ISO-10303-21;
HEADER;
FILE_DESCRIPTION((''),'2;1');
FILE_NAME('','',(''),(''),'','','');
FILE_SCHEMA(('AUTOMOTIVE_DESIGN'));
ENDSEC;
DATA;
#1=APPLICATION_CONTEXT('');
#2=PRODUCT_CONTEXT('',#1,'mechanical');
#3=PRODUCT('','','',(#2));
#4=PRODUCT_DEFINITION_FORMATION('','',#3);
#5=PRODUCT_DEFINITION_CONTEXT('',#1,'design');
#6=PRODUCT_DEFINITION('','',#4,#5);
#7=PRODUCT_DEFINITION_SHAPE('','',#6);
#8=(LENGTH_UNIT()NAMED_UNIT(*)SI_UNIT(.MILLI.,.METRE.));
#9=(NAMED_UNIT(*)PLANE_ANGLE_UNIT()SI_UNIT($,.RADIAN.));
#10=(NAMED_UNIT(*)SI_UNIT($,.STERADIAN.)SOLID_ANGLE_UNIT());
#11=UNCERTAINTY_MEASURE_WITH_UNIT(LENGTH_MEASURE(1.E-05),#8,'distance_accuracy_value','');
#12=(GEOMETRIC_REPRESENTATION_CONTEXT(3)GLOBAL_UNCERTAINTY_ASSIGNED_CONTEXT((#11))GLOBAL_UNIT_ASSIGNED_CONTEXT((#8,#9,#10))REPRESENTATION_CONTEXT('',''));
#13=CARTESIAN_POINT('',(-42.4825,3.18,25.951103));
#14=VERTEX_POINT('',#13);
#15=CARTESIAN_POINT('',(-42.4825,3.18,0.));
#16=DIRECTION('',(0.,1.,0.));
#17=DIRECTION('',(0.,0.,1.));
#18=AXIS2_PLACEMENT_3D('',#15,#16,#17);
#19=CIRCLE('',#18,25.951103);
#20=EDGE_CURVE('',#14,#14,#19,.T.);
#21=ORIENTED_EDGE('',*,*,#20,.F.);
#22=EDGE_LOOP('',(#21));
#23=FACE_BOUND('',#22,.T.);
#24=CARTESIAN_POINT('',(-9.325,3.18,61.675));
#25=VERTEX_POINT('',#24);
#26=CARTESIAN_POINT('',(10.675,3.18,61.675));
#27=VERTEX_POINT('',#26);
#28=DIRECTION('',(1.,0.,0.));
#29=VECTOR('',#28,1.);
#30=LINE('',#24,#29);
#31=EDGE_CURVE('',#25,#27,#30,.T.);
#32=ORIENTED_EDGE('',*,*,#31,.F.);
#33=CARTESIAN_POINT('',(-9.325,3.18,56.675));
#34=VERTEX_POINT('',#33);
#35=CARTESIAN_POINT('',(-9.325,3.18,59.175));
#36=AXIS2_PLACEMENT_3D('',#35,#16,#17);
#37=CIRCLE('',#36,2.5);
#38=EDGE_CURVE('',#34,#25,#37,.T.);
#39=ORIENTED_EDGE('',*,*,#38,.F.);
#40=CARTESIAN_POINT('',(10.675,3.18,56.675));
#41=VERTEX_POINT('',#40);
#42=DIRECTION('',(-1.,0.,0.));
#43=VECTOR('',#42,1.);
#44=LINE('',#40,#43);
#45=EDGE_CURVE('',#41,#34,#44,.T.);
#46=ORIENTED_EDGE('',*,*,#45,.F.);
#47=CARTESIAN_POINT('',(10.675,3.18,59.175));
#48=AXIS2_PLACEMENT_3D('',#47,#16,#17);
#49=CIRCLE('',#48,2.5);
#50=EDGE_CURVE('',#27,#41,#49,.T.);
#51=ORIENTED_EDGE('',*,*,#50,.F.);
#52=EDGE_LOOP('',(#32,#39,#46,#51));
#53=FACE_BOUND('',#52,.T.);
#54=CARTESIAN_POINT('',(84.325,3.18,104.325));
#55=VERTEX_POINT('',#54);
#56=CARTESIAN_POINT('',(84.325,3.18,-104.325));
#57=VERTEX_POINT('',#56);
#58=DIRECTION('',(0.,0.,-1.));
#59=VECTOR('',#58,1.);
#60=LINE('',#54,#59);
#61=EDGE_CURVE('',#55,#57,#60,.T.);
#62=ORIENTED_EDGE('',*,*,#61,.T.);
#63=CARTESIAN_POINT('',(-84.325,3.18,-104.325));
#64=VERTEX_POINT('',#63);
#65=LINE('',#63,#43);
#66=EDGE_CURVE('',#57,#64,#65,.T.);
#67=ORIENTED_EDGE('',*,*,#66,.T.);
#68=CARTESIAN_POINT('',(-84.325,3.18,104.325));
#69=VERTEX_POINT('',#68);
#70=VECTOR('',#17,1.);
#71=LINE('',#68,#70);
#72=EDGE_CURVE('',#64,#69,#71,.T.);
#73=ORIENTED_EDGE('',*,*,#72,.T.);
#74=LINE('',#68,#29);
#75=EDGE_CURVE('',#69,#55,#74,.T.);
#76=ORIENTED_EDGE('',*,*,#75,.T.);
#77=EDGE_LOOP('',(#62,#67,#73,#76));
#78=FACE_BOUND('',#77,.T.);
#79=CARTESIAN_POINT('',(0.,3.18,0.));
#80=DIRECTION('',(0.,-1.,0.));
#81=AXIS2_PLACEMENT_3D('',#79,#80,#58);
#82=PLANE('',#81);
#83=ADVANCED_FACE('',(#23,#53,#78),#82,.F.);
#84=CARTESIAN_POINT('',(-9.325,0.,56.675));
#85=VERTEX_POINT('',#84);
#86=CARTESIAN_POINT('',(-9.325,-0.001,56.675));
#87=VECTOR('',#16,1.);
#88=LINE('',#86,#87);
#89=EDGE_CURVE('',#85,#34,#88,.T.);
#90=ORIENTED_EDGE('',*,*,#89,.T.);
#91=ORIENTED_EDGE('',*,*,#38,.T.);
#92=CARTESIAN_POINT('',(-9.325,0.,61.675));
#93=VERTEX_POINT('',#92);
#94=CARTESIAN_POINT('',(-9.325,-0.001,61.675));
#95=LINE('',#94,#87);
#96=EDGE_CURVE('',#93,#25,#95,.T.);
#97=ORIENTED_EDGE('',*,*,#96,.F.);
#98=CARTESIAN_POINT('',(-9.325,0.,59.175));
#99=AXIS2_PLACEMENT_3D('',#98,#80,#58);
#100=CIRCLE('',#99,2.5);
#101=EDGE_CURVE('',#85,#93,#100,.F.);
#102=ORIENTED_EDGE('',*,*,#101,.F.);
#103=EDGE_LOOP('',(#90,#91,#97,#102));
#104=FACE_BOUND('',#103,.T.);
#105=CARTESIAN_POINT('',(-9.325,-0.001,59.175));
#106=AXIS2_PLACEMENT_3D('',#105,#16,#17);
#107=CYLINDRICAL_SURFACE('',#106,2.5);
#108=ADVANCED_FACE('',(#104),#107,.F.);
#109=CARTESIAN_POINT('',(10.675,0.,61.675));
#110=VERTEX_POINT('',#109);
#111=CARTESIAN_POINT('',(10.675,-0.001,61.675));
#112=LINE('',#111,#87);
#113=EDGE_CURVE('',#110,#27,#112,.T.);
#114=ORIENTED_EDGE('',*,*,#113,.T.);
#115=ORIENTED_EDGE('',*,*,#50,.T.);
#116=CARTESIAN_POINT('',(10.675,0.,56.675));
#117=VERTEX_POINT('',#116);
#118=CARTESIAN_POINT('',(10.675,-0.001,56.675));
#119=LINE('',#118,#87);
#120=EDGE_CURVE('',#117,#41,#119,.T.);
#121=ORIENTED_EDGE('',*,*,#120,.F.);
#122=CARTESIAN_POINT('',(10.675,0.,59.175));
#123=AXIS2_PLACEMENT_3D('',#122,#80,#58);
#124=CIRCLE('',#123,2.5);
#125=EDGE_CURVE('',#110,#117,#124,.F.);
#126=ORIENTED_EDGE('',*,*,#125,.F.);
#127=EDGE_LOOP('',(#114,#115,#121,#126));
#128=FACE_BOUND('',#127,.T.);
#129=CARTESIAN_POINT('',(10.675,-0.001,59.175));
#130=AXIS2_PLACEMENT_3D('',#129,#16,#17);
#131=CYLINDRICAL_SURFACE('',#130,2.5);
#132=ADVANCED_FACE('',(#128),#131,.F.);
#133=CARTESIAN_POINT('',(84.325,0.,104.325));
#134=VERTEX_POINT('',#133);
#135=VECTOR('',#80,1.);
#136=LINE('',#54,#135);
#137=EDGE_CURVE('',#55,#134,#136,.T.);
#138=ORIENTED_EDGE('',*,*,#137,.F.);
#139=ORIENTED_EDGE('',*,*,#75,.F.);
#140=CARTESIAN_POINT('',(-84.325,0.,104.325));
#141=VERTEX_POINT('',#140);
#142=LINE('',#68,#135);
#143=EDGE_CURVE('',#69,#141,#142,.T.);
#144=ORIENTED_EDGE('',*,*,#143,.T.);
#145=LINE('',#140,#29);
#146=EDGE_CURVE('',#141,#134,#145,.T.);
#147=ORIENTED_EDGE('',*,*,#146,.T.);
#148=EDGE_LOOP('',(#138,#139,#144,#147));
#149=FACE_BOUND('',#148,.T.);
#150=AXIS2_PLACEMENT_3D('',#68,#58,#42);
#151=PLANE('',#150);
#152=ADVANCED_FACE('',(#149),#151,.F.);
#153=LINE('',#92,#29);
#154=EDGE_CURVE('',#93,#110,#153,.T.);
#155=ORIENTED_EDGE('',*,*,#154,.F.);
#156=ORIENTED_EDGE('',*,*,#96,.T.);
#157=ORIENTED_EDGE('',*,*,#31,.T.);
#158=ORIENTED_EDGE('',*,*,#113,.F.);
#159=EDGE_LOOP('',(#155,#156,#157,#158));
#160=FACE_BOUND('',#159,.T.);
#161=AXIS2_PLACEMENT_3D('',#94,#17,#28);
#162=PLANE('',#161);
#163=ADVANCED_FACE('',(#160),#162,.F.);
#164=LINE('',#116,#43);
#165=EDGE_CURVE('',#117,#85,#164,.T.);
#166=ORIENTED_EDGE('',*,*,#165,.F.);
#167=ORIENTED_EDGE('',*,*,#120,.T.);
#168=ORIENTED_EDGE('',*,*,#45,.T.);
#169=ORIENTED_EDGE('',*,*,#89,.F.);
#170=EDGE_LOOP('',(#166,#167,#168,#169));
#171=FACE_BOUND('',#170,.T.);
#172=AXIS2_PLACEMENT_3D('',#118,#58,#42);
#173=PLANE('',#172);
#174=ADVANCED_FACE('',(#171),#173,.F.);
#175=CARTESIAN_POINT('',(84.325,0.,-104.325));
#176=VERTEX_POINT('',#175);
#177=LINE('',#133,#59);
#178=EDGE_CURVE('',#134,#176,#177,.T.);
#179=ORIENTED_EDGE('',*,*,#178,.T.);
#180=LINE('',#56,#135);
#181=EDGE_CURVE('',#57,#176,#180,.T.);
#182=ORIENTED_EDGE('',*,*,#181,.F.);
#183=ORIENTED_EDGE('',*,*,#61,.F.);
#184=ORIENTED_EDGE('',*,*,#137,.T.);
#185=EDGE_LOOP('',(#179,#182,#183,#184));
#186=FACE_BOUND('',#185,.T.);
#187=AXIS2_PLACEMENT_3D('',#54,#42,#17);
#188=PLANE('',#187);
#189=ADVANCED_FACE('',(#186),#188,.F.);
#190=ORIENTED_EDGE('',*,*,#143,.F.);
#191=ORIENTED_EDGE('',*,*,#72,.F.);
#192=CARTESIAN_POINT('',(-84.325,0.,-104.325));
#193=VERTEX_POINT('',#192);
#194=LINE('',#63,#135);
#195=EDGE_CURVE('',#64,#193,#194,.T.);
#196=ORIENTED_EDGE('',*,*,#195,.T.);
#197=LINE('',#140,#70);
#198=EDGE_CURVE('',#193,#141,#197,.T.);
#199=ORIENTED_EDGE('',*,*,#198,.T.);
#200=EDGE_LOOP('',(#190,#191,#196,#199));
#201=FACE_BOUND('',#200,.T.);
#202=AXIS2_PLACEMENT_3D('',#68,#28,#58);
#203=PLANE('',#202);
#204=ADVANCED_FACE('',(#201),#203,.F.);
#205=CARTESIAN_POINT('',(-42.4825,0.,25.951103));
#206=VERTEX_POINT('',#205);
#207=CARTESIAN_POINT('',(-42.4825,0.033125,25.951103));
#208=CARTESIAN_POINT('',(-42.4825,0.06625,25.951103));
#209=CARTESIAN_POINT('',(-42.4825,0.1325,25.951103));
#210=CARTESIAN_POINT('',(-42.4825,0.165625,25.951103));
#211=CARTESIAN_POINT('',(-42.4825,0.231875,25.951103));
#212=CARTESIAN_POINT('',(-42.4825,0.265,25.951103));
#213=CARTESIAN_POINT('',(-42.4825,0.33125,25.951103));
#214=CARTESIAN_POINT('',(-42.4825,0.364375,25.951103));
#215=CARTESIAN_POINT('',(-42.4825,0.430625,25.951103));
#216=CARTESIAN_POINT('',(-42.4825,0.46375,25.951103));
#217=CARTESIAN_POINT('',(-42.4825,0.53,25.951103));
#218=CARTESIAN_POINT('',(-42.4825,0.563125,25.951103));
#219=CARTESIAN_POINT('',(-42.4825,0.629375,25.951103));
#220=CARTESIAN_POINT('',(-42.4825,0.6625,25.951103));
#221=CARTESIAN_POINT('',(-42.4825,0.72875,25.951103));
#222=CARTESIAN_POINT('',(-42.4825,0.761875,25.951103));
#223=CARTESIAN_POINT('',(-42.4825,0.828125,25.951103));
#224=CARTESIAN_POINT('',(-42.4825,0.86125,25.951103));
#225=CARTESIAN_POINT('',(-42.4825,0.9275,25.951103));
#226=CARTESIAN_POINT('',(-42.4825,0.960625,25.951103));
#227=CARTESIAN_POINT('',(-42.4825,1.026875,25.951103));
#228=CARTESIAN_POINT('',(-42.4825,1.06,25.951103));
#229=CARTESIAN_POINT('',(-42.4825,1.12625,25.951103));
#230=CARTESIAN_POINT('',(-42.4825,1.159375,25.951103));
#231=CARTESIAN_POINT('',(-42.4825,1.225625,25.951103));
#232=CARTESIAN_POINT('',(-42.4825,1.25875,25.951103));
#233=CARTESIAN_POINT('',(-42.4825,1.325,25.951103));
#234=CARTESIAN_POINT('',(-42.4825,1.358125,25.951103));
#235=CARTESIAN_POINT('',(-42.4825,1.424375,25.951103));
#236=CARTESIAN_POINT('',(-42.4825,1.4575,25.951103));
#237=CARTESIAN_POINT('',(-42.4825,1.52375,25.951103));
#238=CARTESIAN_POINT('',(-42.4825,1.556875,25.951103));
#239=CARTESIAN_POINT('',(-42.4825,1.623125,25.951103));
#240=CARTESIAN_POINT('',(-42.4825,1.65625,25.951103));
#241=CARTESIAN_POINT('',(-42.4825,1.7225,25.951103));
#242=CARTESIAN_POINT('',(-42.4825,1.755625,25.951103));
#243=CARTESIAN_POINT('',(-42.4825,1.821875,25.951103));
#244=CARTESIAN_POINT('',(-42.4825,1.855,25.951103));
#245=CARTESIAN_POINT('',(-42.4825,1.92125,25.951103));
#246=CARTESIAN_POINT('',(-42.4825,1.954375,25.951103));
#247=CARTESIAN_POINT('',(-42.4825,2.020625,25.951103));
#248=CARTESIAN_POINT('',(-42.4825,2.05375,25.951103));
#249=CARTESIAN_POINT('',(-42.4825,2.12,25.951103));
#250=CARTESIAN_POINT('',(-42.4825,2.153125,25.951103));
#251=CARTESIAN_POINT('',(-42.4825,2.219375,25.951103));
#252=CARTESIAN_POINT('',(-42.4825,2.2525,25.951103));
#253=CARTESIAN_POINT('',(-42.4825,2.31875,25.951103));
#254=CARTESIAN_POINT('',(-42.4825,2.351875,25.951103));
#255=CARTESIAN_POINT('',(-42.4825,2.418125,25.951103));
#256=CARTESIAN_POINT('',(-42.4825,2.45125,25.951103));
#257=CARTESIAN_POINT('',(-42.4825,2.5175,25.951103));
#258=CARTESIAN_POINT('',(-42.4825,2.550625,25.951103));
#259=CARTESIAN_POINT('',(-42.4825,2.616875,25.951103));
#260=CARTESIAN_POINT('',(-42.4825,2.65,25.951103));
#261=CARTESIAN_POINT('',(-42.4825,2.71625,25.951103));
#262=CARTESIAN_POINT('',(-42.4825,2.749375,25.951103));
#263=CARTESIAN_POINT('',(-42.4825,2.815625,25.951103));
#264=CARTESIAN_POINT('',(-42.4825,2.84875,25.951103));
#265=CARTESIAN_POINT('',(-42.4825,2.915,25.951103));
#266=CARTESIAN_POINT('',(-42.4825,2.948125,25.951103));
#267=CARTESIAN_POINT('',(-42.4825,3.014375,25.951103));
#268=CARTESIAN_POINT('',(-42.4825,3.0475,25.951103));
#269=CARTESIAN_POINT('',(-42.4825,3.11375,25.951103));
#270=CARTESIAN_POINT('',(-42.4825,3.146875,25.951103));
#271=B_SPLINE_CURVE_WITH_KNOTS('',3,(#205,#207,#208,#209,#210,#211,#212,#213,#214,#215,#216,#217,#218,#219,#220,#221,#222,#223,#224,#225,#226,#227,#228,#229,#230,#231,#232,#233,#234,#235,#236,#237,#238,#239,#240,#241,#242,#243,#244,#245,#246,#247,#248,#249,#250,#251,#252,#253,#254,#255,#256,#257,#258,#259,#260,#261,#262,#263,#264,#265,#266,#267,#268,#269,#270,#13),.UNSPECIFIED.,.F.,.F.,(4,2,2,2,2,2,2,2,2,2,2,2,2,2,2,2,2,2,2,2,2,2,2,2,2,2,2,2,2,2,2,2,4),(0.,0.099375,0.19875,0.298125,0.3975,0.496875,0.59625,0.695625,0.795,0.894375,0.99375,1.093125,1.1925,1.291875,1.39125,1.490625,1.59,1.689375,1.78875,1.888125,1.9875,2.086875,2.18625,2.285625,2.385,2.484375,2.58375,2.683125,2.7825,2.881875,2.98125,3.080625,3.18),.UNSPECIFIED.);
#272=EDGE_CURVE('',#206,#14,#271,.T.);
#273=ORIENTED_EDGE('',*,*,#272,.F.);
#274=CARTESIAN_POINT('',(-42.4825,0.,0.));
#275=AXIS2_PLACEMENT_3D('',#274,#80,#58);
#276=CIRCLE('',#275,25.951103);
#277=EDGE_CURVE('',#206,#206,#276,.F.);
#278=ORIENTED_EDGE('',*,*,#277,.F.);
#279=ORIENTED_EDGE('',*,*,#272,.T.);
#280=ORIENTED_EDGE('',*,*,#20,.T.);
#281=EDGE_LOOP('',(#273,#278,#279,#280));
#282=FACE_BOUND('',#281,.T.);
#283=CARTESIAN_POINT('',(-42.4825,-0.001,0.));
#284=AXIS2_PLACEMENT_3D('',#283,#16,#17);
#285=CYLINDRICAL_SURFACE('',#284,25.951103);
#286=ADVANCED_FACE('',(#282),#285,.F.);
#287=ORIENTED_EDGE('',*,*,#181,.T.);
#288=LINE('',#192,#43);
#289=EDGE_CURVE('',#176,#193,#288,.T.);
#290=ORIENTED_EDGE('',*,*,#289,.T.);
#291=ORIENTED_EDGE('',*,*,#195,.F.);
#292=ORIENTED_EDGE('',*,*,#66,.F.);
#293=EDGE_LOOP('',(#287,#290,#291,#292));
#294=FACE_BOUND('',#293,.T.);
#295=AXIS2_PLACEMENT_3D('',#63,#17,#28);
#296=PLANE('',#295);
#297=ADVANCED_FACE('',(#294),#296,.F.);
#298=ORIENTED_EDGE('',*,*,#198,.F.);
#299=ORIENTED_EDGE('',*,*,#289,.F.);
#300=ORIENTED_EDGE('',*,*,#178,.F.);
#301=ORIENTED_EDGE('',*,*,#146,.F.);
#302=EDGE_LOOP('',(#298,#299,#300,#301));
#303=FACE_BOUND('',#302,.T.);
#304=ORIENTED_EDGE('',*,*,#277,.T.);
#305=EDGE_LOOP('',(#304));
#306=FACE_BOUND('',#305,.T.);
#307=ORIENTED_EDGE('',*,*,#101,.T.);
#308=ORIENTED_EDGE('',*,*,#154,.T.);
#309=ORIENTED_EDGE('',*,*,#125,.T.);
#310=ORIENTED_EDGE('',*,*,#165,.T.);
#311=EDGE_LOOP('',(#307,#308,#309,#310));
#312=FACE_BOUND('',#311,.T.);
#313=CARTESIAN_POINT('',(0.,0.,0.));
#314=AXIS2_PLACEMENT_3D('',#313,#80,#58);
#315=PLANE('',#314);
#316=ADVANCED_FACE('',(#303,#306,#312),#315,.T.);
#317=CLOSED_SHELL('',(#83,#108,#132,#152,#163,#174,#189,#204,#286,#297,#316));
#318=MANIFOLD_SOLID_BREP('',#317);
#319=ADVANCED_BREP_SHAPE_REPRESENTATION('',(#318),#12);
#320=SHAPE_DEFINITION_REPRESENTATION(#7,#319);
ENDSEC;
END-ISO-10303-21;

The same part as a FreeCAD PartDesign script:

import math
import FreeCAD as App
import Part
import Sketcher

V = App.Vector


def add_polygon(sketch, points):
    """Adds a closed chain of lines whose ends are joined by coincident constraints."""
    first, n = sketch.GeometryCount, len(points)
    for a, b in zip(points, points[1:] + points[:1]):
        sketch.addGeometry(Part.LineSegment(App.Vector(*a, 0), App.Vector(*b, 0)), False)
    for i in range(n):
        sketch.addConstraint(Sketcher.Constraint("Coincident", first + i, 2, first + (i + 1) % n, 1))

doc = App.newDocument("Part")
body = doc.addObject("PartDesign::Body", "Body")

# Sketch on XZ plane
sketch1 = doc.addObject("Sketcher::SketchObject", "Sketch")
body.addObject(sketch1)
sketch1.AttachmentSupport = (doc.XZ_Plane, [""])
sketch1.MapMode = "FlatFace"
add_polygon(sketch1, [(-84, -104), (-84, 104), (84, 104), (84, -104)])  # lines 0-3
sketch1.addConstraint([
    Sketcher.Constraint("Vertical", 0),
    Sketcher.Constraint("Horizontal", 1),
    Sketcher.Constraint("Vertical", 2),
    Sketcher.Constraint("Horizontal", 3),
    Sketcher.Constraint("Symmetric", 0, 2, 2, 2, -1, 1),
    Sketcher.Constraint("DistanceX", 1, 1, 1, 2, 168.65),
    Sketcher.Constraint("DistanceY", 0, 1, 0, 2, 208.65),
])
pad1 = doc.addObject("PartDesign::Pad", "Pad")
body.addObject(pad1)
pad1.Profile = sketch1
pad1.Length = 3.18
pad1.Reversed = True

# Sketch on XZ plane
sketch2 = doc.addObject("Sketcher::SketchObject", "Sketch001")
body.addObject(sketch2)
sketch2.AttachmentSupport = (doc.XZ_Plane, [""])
sketch2.MapMode = "FlatFace"
sketch2.AttachmentOffset = App.Placement(V(0, 0, -3.18), App.Rotation())
sketch2.addGeometry([
    Part.LineSegment(V(10.7, 56.7, 0), V(-9.3, 56.7, 0)),
    Part.ArcOfCircle(Part.Circle(V(-9.3, 59.2, 0), V(0, 0, 1), 2.5), math.radians(90), math.radians(270)),
    Part.LineSegment(V(-9.3, 61.7, 0), V(10.7, 61.7, 0)),
    Part.ArcOfCircle(Part.Circle(V(10.7, 59.2, 0), V(0, 0, 1), 2.5), math.radians(-90), math.radians(90)),
], False)
sketch2.addConstraint([
    Sketcher.Constraint("Tangent", 0, 2, 1, 2),
    Sketcher.Constraint("Tangent", 1, 1, 2, 1),
    Sketcher.Constraint("Tangent", 2, 2, 3, 2),
    Sketcher.Constraint("Tangent", 3, 1, 0, 1),
    Sketcher.Constraint("Horizontal", 0),
    Sketcher.Constraint("Horizontal", 2),
    Sketcher.Constraint("Radius", 1, 2.5),
    Sketcher.Constraint("DistanceX", 0, 2, 0, 1, 20.0),
    Sketcher.Constraint("DistanceX", 1, 3, -1, 1, 9.325),
    Sketcher.Constraint("DistanceY", -1, 1, 1, 3, 59.175),
])
pocket1 = doc.addObject("PartDesign::Pocket", "Pocket")
body.addObject(pocket1)
pocket1.Profile = sketch2
pocket1.Type = "UpToFirst"
pocket1.Reversed = True

# Sketch on XZ plane
sketch3 = doc.addObject("Sketcher::SketchObject", "Sketch002")
body.addObject(sketch3)
sketch3.AttachmentSupport = (doc.XZ_Plane, [""])
sketch3.MapMode = "FlatFace"
sketch3.AttachmentOffset = App.Placement(V(0, 0, -3.18), App.Rotation())
sketch3.addGeometry(Part.Circle(V(-42, 0, 0), V(0, 0, 1), 26), False)
sketch3.addConstraint([
    Sketcher.Constraint("PointOnObject", 0, 3, -1),
    Sketcher.Constraint("Diameter", 0, 51.902207),
    Sketcher.Constraint("DistanceX", 0, 3, -1, 1, 42.4825),
])
pocket2 = doc.addObject("PartDesign::Pocket", "Pocket001")
body.addObject(pocket2)
pocket2.Profile = sketch3
pocket2.Type = "UpToFirst"
pocket2.Reversed = True

doc.recompute()
